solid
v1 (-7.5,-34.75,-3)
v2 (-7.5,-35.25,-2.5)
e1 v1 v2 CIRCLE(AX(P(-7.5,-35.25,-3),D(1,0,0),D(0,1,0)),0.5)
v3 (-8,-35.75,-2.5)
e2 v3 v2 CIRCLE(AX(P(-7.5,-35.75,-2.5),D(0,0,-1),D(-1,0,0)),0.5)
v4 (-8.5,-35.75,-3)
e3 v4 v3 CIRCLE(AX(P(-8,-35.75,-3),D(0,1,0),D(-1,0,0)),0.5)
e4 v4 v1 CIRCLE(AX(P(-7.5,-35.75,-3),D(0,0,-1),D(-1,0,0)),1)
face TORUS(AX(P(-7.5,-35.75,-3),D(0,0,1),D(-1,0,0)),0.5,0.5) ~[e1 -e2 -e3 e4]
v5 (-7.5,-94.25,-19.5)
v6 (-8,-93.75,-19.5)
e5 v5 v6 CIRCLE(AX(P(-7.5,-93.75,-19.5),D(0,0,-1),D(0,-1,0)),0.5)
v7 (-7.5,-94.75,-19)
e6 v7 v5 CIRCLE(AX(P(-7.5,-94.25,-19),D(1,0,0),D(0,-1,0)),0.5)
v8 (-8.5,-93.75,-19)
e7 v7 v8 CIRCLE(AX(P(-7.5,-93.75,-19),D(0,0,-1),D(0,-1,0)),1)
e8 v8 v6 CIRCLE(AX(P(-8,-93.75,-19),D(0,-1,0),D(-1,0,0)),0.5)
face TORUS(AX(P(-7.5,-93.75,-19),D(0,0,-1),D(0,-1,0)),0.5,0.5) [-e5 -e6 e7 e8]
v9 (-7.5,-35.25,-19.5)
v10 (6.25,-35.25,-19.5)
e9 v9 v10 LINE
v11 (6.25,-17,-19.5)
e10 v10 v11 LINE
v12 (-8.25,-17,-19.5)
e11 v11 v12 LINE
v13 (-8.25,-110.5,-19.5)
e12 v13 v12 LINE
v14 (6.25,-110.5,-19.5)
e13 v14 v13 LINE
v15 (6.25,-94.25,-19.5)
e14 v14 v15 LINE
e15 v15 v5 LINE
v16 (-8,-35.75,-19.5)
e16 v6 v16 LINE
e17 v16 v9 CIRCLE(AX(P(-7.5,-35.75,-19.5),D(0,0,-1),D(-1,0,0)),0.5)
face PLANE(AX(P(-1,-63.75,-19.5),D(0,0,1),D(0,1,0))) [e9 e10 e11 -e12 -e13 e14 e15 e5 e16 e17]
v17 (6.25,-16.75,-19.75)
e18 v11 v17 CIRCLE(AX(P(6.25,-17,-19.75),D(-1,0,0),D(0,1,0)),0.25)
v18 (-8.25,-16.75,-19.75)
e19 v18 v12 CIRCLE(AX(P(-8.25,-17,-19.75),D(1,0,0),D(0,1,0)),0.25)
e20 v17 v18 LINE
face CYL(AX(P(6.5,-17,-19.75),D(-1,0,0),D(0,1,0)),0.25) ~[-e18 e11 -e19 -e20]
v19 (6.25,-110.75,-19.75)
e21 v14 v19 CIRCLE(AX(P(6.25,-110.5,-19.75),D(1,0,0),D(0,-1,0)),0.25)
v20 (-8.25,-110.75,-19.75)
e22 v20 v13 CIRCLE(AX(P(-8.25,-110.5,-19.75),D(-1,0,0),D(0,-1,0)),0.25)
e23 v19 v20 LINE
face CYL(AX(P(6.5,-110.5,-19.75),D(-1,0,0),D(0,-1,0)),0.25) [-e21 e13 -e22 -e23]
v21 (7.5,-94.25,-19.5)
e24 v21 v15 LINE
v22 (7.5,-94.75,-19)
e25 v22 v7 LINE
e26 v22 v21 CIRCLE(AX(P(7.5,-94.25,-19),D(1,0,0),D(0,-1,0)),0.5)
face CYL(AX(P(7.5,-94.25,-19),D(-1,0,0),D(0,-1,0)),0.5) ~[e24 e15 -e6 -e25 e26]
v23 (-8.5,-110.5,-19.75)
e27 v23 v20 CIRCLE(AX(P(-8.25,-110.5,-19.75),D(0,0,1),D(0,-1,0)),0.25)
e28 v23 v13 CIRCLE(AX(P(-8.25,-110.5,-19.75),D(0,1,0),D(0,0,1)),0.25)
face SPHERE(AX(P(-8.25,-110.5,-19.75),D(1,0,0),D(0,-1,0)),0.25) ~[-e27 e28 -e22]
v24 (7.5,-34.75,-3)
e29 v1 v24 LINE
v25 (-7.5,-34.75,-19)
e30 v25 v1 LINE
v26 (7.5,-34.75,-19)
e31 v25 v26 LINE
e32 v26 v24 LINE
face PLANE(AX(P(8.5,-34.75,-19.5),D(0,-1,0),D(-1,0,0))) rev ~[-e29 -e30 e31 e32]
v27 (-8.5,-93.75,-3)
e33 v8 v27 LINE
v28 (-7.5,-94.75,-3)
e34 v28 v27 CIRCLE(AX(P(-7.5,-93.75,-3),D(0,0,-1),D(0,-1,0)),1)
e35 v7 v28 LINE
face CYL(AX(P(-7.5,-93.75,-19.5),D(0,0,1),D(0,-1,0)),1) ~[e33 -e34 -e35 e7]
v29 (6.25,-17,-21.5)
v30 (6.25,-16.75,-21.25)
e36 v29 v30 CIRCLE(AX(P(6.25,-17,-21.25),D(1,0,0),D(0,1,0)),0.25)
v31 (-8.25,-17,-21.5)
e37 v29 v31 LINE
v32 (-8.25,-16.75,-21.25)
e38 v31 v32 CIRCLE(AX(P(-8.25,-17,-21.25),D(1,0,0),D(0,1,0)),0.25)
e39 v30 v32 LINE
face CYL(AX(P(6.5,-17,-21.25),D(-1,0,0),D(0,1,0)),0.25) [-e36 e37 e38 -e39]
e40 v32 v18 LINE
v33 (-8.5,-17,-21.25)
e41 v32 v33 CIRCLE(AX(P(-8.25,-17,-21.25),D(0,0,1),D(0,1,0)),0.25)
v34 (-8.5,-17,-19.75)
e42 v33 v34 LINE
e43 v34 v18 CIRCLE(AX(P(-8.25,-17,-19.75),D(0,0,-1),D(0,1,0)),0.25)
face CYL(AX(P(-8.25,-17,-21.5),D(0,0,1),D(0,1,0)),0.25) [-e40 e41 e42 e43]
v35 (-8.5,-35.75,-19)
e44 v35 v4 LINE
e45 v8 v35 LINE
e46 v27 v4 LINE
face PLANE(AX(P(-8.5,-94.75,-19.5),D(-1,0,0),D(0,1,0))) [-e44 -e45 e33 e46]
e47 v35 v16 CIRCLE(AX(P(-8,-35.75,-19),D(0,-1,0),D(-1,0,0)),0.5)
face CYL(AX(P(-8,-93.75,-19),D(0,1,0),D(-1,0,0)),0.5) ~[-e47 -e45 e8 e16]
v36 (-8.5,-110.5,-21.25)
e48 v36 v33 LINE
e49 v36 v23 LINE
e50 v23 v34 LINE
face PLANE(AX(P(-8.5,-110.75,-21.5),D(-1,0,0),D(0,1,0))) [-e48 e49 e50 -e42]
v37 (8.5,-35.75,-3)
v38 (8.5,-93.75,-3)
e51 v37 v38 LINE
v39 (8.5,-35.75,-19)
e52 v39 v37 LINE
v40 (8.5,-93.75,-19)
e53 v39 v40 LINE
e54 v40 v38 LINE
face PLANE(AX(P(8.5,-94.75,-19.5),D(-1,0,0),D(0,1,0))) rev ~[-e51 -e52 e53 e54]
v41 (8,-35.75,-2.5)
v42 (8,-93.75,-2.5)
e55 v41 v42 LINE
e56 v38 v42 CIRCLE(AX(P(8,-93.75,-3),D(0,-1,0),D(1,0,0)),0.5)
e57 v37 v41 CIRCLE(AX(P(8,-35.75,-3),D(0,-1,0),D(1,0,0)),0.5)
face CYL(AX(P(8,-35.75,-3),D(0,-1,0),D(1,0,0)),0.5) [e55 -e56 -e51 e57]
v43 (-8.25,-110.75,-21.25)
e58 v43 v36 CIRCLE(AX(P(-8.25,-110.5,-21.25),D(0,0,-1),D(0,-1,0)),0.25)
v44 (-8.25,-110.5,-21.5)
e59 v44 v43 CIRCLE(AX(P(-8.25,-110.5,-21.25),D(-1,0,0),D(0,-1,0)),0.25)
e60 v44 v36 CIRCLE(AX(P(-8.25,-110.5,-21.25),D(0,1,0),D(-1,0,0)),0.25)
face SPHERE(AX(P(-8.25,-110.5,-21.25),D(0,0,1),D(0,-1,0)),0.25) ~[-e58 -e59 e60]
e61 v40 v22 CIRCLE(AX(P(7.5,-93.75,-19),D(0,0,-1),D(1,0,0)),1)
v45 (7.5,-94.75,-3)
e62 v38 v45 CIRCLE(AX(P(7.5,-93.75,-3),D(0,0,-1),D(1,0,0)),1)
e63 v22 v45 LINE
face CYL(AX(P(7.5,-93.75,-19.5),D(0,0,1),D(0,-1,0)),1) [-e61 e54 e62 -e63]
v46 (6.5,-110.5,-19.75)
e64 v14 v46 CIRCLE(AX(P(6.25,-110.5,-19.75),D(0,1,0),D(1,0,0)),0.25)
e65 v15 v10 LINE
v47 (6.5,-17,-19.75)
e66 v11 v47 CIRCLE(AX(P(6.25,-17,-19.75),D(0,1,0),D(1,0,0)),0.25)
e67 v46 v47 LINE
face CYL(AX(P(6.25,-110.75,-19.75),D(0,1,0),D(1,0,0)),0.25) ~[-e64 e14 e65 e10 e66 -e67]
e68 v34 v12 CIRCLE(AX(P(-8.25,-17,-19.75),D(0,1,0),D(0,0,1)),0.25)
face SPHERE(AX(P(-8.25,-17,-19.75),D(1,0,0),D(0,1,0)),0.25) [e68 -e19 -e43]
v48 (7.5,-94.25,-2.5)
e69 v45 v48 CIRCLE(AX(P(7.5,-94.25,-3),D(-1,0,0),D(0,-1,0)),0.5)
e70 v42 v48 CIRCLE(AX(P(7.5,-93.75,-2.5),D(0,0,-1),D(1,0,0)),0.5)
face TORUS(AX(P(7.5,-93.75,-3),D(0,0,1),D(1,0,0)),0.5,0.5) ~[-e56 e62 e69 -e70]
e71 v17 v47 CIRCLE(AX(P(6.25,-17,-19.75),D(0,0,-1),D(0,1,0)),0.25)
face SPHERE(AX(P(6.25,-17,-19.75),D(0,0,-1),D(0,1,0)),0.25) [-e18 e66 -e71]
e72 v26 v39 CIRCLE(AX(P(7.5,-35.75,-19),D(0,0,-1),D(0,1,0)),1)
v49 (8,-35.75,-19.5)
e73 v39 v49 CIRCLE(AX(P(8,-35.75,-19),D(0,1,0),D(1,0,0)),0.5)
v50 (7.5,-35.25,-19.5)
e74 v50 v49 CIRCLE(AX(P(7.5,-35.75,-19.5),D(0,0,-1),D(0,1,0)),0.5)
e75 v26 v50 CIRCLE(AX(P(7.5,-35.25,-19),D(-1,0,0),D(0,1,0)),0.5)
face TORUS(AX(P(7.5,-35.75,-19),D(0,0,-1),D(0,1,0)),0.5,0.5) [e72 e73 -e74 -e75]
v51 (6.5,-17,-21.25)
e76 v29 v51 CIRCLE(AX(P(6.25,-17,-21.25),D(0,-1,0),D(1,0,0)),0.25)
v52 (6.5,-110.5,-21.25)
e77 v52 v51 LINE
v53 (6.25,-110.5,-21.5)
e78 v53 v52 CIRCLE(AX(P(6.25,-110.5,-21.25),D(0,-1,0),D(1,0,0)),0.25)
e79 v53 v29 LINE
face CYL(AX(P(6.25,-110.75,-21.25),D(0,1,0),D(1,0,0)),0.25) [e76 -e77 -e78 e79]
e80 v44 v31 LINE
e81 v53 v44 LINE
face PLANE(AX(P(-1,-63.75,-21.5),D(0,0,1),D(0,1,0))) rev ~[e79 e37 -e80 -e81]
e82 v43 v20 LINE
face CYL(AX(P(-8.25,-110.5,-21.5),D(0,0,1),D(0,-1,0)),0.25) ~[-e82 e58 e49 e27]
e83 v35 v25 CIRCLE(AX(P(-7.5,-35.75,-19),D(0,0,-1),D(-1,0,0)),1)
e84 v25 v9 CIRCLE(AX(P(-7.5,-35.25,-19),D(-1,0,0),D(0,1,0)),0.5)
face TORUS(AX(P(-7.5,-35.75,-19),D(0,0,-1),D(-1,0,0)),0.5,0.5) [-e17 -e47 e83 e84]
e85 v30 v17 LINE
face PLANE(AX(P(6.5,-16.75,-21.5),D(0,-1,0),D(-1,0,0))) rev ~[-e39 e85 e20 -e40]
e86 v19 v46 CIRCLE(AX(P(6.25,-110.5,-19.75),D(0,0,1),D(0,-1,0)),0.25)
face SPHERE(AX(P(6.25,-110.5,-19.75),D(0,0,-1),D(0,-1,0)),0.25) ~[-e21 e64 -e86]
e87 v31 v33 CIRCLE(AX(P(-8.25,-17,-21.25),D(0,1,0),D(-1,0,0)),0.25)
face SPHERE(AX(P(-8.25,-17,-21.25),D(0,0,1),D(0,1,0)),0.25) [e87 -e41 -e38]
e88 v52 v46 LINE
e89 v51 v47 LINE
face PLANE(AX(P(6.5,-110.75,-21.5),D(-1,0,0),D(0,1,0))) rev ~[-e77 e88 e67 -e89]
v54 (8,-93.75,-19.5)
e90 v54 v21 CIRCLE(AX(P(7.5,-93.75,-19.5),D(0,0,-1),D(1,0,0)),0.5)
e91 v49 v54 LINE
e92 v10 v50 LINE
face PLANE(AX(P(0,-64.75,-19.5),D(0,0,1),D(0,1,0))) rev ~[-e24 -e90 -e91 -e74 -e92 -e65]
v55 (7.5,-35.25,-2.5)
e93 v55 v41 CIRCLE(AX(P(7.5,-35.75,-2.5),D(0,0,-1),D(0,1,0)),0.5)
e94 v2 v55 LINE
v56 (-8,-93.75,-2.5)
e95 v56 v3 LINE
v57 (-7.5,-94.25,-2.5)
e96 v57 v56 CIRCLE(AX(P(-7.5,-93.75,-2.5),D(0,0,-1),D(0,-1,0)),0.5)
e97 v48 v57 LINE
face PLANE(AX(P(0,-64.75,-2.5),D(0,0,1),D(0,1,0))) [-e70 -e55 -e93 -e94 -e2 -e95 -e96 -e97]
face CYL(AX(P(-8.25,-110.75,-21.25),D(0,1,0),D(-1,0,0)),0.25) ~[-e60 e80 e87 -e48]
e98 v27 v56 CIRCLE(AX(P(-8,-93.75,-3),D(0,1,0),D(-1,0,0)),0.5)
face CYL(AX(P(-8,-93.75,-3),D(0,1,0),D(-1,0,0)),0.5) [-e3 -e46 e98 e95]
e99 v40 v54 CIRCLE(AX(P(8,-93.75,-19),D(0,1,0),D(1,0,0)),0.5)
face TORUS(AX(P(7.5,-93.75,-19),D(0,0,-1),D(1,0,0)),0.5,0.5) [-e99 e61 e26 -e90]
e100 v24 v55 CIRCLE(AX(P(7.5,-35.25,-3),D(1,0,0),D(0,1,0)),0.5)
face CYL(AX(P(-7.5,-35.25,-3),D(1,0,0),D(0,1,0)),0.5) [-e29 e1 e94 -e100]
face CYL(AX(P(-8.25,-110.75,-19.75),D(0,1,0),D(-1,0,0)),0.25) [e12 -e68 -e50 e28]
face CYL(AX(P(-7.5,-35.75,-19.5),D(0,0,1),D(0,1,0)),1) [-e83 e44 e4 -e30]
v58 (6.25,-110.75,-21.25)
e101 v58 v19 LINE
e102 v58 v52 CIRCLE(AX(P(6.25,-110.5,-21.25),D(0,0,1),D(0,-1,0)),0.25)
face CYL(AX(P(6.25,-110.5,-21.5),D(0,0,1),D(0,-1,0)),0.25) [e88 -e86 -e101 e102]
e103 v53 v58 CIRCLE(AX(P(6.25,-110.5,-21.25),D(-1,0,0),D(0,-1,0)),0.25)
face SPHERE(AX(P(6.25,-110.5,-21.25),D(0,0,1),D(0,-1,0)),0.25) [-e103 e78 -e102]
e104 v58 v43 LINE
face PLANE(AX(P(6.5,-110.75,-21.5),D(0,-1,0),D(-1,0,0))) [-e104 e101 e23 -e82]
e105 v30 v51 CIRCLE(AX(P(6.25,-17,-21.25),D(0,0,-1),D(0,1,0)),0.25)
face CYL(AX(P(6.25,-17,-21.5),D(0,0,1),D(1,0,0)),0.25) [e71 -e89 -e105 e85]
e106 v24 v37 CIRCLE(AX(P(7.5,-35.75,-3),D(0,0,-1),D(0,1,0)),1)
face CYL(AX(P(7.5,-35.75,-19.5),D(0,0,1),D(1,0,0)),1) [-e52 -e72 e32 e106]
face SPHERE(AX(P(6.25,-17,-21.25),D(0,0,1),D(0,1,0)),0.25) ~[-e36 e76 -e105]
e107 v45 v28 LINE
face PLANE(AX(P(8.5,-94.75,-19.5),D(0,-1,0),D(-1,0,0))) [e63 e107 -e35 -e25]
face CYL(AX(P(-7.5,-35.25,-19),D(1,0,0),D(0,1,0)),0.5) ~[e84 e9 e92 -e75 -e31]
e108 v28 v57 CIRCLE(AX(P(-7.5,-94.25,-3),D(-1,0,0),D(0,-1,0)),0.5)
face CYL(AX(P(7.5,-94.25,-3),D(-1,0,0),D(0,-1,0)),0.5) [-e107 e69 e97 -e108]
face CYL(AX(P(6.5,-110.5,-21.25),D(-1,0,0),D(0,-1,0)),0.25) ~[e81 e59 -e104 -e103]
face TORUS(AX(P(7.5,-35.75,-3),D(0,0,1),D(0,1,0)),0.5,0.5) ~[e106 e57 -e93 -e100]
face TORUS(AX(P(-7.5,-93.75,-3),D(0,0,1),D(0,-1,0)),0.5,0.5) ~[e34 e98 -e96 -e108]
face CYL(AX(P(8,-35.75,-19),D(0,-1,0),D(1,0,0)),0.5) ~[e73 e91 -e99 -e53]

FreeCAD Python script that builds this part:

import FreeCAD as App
import Part
import Sketcher

V = App.Vector


def edges_at(feature, points):
    """Names of the edges that pass closest to the given points."""
    edges = feature.Shape.Edges
    near = lambda p: min(range(len(edges)), key=lambda i: edges[i].distToShape(Part.Vertex(*p))[0])
    return sorted({f"Edge{near(p) + 1}" for p in points})


def add_polygon(sketch, points):
    """Adds a closed chain of lines whose ends are joined by coincident constraints."""
    first, n = sketch.GeometryCount, len(points)
    for a, b in zip(points, points[1:] + points[:1]):
        sketch.addGeometry(Part.LineSegment(App.Vector(*a, 0), App.Vector(*b, 0)), False)
    for i in range(n):
        sketch.addConstraint(Sketcher.Constraint("Coincident", first + i, 2, first + (i + 1) % n, 1))

doc = App.newDocument("Part")
body = doc.addObject("PartDesign::Body", "Body")

# Sketch on XY plane
sketch1 = doc.addObject("Sketcher::SketchObject", "Sketch")
body.addObject(sketch1)
sketch1.AttachmentSupport = (doc.XY_Plane, [""])
sketch1.MapMode = "FlatFace"
sketch1.AttachmentOffset = App.Placement(V(0, 0, -2), App.Rotation())
add_polygon(sketch1, [(-94, 8), (-94, -6), (0, -6), (0, 8)])  # lines 0-3
sketch1.addConstraint([
    Sketcher.Constraint("Vertical", 0),
    Sketcher.Constraint("Horizontal", 1),
    Sketcher.Constraint("Vertical", 2),
    Sketcher.Constraint("Horizontal", 3),
    Sketcher.Constraint("PointOnObject", 1, 2, -2),
    Sketcher.Constraint("DistanceX", 1, 1, 1, 2, 94.0),
    Sketcher.Constraint("DistanceY", 0, 2, 0, 1, 15.0),
    Sketcher.Constraint("DistanceY", 0, 2, -1, 1, 6.5),
])
pad1 = doc.addObject("PartDesign::Pad", "Pad")
body.addObject(pad1)
pad1.Profile = sketch1
pad1.Length = 2
doc.recompute()

fillet = doc.addObject("PartDesign::Fillet", "Fillet")
body.addObject(fillet)
fillet.Base = (pad1, ["Edge1"])
fillet.UseAllEdges = True
fillet.Radius = 0.25
body2 = doc.addObject("PartDesign::Body", "Body001")
doc.recompute()

body.Placement = App.Placement(V(0, -16.75, -19.5), App.Rotation(V(0, 0, 1), 90))
boolean = doc.addObject("PartDesign::Boolean", "Boolean")
body2.addObject(boolean)
boolean.Type = "Fuse"
boolean.addObjects([body])
body3 = doc.addObject("PartDesign::Body", "Body002")

# Sketch on XY plane
sketch2 = doc.addObject("Sketcher::SketchObject", "Sketch001")
body3.addObject(sketch2)
sketch2.AttachmentSupport = (doc.getObject("XY_Plane002"), [""])
sketch2.MapMode = "FlatFace"
sketch2.AttachmentOffset = App.Placement(V(0, 0, -17), App.Rotation())
add_polygon(sketch2, [(0, 8), (0, -8), (60, -8), (60, 8)])  # lines 0-3
sketch2.addConstraint([
    Sketcher.Constraint("Vertical", 0),
    Sketcher.Constraint("Horizontal", 1),
    Sketcher.Constraint("Vertical", 2),
    Sketcher.Constraint("Horizontal", 3),
    Sketcher.Constraint("Symmetric", 0, 2, 3, 2, -1, 1),
    Sketcher.Constraint("DistanceX", 1, 1, 1, 2, 60.0),
    Sketcher.Constraint("DistanceY", 0, 2, 0, 1, 17.0),
])
pad2 = doc.addObject("PartDesign::Pad", "Pad001")
body3.addObject(pad2)
pad2.Profile = sketch2
pad2.Length = 17
doc.recompute()

fillet2 = doc.addObject("PartDesign::Fillet", "Fillet001")
body3.addObject(fillet2)
fillet2.Base = (pad2, edges_at(pad2, [
    (0, -8.5, -8.5),
    (0, 8.5, -8.5),
    (60, -8.5, -8.5),
    (60, 8.5, -8.5),
]))
fillet2.Radius = 1
doc.recompute()

fillet3 = doc.addObject("PartDesign::Fillet", "Fillet002")
body3.addObject(fillet3)
fillet3.Base = (fillet2, edges_at(fillet2, [
    (0, 0, 0),
    (0, 0, -17),
    (30, -8.5, 0),
    (30, 8.5, 0),
    (60, 0, 0),
    (30, -8.5, -17),
    (30, 8.5, -17),
    (60, 0, -17),
]))
fillet3.Radius = 0.5
body4 = doc.addObject("PartDesign::Body", "Body003")
doc.recompute()

body3.Placement = App.Placement(V(0, -94.75, -2.5), App.Rotation(V(0, 0, 1), 90))
boolean2 = doc.addObject("PartDesign::Boolean", "Boolean001")
body4.addObject(boolean2)
boolean2.Type = "Fuse"
boolean2.addObjects([body3])
doc.recompute()

boolean3 = doc.addObject("PartDesign::Boolean", "Boolean002")
body4.addObject(boolean3)
boolean3.Type = "Fuse"
boolean3.addObjects([body2])

doc.recompute()
